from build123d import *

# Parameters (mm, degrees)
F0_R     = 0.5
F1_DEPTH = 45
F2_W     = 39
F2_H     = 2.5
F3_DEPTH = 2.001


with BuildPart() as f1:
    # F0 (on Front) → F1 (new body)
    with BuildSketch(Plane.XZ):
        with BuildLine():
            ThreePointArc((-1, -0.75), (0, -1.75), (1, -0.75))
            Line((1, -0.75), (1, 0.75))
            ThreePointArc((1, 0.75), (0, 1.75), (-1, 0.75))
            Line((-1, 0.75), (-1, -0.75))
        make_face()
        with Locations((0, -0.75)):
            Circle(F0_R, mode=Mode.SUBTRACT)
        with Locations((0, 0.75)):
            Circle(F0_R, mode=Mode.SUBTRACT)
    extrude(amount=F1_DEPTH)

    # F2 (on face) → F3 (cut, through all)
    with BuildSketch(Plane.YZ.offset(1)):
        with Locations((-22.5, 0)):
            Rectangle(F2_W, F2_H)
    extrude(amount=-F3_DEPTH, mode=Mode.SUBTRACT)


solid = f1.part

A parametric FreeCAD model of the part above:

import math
import FreeCAD as App
import Part
import Sketcher
from FreeCAD import Vector
Q = App.Units.Quantity


def add_polygon(sketch, points):
    """Adds a closed chain of lines whose ends are joined by coincident constraints."""
    first, n = sketch.GeometryCount, len(points)
    for a, b in zip(points, points[1:] + points[:1]):
        sketch.addGeometry(Part.LineSegment(App.Vector(*a, 0), App.Vector(*b, 0)), False)
    for i in range(n):
        sketch.addConstraint(Sketcher.Constraint("Coincident", first + i, 2, first + (i + 1) % n, 1))

doc = App.newDocument("Part")
params = doc.addObject("Spreadsheet::Sheet", "Params")
for row, (alias, value) in enumerate([
    ("sketch1_diameter", "1 mm"),
    ("sketch1_radius", "1 mm"),
    ("sketch1_height", "1.5 mm"),
    ("pad1_length", "45 mm"),
    ("sketch2_width", "39 mm"),
    ("sketch2_height", "2.5 mm"),
], start=1):
    params.set(f"A{row}", alias)
    params.set(f"B{row}", "=" + value)
    params.setAlias(f"B{row}", alias)

body = doc.addObject("PartDesign::Body", "Body")

sketch1 = body.newObject("Sketcher::SketchObject", "Sketch")
sketch1.AttachmentSupport = (doc.getObject("XZ_Plane"), [""])
sketch1.MapMode = "FlatFace"
sketch1.addGeometry([
    Part.ArcOfCircle(Part.Circle(Vector(0, -0.8, 0), Vector(0, 0, 1), 1), math.radians(180), math.radians(360)),
    Part.LineSegment(Vector(1, -0.8, 0), Vector(1, 0.8, 0)),
    Part.ArcOfCircle(Part.Circle(Vector(0, 0.8, 0), Vector(0, 0, 1), 1), math.radians(0), math.radians(180)),
    Part.LineSegment(Vector(-1, 0.8, 0), Vector(-1, -0.8, 0)),
    Part.Circle(Vector(0, -0.8, 0), Vector(0, 0, 1), 0.5),
    Part.Circle(Vector(0, 0.8, 0), Vector(0, 0, 1), 0.5),
], False)
sketch1.addConstraint([
    Sketcher.Constraint("Tangent", 0, 2, 1, 1),
    Sketcher.Constraint("Tangent", 1, 2, 2, 1),
    Sketcher.Constraint("Tangent", 2, 2, 3, 1),
    Sketcher.Constraint("Tangent", 3, 2, 0, 1),
    Sketcher.Constraint("Vertical", 1),
    Sketcher.Constraint("Vertical", 3),
    Sketcher.Constraint("Coincident", 4, 3, 0, 3),
    Sketcher.Constraint("Coincident", 5, 3, 2, 3),
    Sketcher.Constraint("Equal", 4, 5),
    Sketcher.Constraint("Symmetric", 0, 3, 2, 3, -1, 1),
    Sketcher.Constraint("Diameter", 4, Q("1 mm")),
    Sketcher.Constraint("Radius", 0, Q("1 mm")),
    Sketcher.Constraint("DistanceY", 1, 1, 1, 2, Q("1.5 mm")),
])
sketch1.setExpression("Constraints[10]", "Params.sketch1_diameter")
sketch1.setExpression("Constraints[11]", "Params.sketch1_radius")
sketch1.setExpression("Constraints[12]", "Params.sketch1_height")
pad1 = body.newObject("PartDesign::Pad", "Pad")
pad1.Profile = sketch1
pad1.setExpression("Length", "Params.pad1_length")

sketch2 = body.newObject("Sketcher::SketchObject", "Sketch001")
sketch2.AttachmentSupport = (doc.getObject("YZ_Plane"), [""])
sketch2.MapMode = "FlatFace"
sketch2.AttachmentOffset = App.Placement(Vector(0, 0, 1), App.Rotation())
add_polygon(sketch2, [(-42, 1.2), (-42, -1.2), (-3, -1.2), (-3, 1.2)])
sketch2.addConstraint([
    Sketcher.Constraint("Vertical", 0),
    Sketcher.Constraint("Horizontal", 1),
    Sketcher.Constraint("Vertical", 2),
    Sketcher.Constraint("Horizontal", 3),
    Sketcher.Constraint("DistanceX", 1, 1, 1, 2, Q("39 mm")),
    Sketcher.Constraint("DistanceY", 0, 2, 0, 1, Q("2.5 mm")),
    Sketcher.Constraint("DistanceX", 0, 2, -1, 1, Q("42 mm")),
    Sketcher.Constraint("DistanceY", 0, 2, -1, 1, Q("1.25 mm")),
])
sketch2.setExpression("Constraints[8]", "Params.sketch2_width")
sketch2.setExpression("Constraints[9]", "Params.sketch2_height")
pocket1 = body.newObject("PartDesign::Pocket", "Pocket")
pocket1.Profile = sketch2
pocket1.Type = "ThroughAll"

doc.recompute()
